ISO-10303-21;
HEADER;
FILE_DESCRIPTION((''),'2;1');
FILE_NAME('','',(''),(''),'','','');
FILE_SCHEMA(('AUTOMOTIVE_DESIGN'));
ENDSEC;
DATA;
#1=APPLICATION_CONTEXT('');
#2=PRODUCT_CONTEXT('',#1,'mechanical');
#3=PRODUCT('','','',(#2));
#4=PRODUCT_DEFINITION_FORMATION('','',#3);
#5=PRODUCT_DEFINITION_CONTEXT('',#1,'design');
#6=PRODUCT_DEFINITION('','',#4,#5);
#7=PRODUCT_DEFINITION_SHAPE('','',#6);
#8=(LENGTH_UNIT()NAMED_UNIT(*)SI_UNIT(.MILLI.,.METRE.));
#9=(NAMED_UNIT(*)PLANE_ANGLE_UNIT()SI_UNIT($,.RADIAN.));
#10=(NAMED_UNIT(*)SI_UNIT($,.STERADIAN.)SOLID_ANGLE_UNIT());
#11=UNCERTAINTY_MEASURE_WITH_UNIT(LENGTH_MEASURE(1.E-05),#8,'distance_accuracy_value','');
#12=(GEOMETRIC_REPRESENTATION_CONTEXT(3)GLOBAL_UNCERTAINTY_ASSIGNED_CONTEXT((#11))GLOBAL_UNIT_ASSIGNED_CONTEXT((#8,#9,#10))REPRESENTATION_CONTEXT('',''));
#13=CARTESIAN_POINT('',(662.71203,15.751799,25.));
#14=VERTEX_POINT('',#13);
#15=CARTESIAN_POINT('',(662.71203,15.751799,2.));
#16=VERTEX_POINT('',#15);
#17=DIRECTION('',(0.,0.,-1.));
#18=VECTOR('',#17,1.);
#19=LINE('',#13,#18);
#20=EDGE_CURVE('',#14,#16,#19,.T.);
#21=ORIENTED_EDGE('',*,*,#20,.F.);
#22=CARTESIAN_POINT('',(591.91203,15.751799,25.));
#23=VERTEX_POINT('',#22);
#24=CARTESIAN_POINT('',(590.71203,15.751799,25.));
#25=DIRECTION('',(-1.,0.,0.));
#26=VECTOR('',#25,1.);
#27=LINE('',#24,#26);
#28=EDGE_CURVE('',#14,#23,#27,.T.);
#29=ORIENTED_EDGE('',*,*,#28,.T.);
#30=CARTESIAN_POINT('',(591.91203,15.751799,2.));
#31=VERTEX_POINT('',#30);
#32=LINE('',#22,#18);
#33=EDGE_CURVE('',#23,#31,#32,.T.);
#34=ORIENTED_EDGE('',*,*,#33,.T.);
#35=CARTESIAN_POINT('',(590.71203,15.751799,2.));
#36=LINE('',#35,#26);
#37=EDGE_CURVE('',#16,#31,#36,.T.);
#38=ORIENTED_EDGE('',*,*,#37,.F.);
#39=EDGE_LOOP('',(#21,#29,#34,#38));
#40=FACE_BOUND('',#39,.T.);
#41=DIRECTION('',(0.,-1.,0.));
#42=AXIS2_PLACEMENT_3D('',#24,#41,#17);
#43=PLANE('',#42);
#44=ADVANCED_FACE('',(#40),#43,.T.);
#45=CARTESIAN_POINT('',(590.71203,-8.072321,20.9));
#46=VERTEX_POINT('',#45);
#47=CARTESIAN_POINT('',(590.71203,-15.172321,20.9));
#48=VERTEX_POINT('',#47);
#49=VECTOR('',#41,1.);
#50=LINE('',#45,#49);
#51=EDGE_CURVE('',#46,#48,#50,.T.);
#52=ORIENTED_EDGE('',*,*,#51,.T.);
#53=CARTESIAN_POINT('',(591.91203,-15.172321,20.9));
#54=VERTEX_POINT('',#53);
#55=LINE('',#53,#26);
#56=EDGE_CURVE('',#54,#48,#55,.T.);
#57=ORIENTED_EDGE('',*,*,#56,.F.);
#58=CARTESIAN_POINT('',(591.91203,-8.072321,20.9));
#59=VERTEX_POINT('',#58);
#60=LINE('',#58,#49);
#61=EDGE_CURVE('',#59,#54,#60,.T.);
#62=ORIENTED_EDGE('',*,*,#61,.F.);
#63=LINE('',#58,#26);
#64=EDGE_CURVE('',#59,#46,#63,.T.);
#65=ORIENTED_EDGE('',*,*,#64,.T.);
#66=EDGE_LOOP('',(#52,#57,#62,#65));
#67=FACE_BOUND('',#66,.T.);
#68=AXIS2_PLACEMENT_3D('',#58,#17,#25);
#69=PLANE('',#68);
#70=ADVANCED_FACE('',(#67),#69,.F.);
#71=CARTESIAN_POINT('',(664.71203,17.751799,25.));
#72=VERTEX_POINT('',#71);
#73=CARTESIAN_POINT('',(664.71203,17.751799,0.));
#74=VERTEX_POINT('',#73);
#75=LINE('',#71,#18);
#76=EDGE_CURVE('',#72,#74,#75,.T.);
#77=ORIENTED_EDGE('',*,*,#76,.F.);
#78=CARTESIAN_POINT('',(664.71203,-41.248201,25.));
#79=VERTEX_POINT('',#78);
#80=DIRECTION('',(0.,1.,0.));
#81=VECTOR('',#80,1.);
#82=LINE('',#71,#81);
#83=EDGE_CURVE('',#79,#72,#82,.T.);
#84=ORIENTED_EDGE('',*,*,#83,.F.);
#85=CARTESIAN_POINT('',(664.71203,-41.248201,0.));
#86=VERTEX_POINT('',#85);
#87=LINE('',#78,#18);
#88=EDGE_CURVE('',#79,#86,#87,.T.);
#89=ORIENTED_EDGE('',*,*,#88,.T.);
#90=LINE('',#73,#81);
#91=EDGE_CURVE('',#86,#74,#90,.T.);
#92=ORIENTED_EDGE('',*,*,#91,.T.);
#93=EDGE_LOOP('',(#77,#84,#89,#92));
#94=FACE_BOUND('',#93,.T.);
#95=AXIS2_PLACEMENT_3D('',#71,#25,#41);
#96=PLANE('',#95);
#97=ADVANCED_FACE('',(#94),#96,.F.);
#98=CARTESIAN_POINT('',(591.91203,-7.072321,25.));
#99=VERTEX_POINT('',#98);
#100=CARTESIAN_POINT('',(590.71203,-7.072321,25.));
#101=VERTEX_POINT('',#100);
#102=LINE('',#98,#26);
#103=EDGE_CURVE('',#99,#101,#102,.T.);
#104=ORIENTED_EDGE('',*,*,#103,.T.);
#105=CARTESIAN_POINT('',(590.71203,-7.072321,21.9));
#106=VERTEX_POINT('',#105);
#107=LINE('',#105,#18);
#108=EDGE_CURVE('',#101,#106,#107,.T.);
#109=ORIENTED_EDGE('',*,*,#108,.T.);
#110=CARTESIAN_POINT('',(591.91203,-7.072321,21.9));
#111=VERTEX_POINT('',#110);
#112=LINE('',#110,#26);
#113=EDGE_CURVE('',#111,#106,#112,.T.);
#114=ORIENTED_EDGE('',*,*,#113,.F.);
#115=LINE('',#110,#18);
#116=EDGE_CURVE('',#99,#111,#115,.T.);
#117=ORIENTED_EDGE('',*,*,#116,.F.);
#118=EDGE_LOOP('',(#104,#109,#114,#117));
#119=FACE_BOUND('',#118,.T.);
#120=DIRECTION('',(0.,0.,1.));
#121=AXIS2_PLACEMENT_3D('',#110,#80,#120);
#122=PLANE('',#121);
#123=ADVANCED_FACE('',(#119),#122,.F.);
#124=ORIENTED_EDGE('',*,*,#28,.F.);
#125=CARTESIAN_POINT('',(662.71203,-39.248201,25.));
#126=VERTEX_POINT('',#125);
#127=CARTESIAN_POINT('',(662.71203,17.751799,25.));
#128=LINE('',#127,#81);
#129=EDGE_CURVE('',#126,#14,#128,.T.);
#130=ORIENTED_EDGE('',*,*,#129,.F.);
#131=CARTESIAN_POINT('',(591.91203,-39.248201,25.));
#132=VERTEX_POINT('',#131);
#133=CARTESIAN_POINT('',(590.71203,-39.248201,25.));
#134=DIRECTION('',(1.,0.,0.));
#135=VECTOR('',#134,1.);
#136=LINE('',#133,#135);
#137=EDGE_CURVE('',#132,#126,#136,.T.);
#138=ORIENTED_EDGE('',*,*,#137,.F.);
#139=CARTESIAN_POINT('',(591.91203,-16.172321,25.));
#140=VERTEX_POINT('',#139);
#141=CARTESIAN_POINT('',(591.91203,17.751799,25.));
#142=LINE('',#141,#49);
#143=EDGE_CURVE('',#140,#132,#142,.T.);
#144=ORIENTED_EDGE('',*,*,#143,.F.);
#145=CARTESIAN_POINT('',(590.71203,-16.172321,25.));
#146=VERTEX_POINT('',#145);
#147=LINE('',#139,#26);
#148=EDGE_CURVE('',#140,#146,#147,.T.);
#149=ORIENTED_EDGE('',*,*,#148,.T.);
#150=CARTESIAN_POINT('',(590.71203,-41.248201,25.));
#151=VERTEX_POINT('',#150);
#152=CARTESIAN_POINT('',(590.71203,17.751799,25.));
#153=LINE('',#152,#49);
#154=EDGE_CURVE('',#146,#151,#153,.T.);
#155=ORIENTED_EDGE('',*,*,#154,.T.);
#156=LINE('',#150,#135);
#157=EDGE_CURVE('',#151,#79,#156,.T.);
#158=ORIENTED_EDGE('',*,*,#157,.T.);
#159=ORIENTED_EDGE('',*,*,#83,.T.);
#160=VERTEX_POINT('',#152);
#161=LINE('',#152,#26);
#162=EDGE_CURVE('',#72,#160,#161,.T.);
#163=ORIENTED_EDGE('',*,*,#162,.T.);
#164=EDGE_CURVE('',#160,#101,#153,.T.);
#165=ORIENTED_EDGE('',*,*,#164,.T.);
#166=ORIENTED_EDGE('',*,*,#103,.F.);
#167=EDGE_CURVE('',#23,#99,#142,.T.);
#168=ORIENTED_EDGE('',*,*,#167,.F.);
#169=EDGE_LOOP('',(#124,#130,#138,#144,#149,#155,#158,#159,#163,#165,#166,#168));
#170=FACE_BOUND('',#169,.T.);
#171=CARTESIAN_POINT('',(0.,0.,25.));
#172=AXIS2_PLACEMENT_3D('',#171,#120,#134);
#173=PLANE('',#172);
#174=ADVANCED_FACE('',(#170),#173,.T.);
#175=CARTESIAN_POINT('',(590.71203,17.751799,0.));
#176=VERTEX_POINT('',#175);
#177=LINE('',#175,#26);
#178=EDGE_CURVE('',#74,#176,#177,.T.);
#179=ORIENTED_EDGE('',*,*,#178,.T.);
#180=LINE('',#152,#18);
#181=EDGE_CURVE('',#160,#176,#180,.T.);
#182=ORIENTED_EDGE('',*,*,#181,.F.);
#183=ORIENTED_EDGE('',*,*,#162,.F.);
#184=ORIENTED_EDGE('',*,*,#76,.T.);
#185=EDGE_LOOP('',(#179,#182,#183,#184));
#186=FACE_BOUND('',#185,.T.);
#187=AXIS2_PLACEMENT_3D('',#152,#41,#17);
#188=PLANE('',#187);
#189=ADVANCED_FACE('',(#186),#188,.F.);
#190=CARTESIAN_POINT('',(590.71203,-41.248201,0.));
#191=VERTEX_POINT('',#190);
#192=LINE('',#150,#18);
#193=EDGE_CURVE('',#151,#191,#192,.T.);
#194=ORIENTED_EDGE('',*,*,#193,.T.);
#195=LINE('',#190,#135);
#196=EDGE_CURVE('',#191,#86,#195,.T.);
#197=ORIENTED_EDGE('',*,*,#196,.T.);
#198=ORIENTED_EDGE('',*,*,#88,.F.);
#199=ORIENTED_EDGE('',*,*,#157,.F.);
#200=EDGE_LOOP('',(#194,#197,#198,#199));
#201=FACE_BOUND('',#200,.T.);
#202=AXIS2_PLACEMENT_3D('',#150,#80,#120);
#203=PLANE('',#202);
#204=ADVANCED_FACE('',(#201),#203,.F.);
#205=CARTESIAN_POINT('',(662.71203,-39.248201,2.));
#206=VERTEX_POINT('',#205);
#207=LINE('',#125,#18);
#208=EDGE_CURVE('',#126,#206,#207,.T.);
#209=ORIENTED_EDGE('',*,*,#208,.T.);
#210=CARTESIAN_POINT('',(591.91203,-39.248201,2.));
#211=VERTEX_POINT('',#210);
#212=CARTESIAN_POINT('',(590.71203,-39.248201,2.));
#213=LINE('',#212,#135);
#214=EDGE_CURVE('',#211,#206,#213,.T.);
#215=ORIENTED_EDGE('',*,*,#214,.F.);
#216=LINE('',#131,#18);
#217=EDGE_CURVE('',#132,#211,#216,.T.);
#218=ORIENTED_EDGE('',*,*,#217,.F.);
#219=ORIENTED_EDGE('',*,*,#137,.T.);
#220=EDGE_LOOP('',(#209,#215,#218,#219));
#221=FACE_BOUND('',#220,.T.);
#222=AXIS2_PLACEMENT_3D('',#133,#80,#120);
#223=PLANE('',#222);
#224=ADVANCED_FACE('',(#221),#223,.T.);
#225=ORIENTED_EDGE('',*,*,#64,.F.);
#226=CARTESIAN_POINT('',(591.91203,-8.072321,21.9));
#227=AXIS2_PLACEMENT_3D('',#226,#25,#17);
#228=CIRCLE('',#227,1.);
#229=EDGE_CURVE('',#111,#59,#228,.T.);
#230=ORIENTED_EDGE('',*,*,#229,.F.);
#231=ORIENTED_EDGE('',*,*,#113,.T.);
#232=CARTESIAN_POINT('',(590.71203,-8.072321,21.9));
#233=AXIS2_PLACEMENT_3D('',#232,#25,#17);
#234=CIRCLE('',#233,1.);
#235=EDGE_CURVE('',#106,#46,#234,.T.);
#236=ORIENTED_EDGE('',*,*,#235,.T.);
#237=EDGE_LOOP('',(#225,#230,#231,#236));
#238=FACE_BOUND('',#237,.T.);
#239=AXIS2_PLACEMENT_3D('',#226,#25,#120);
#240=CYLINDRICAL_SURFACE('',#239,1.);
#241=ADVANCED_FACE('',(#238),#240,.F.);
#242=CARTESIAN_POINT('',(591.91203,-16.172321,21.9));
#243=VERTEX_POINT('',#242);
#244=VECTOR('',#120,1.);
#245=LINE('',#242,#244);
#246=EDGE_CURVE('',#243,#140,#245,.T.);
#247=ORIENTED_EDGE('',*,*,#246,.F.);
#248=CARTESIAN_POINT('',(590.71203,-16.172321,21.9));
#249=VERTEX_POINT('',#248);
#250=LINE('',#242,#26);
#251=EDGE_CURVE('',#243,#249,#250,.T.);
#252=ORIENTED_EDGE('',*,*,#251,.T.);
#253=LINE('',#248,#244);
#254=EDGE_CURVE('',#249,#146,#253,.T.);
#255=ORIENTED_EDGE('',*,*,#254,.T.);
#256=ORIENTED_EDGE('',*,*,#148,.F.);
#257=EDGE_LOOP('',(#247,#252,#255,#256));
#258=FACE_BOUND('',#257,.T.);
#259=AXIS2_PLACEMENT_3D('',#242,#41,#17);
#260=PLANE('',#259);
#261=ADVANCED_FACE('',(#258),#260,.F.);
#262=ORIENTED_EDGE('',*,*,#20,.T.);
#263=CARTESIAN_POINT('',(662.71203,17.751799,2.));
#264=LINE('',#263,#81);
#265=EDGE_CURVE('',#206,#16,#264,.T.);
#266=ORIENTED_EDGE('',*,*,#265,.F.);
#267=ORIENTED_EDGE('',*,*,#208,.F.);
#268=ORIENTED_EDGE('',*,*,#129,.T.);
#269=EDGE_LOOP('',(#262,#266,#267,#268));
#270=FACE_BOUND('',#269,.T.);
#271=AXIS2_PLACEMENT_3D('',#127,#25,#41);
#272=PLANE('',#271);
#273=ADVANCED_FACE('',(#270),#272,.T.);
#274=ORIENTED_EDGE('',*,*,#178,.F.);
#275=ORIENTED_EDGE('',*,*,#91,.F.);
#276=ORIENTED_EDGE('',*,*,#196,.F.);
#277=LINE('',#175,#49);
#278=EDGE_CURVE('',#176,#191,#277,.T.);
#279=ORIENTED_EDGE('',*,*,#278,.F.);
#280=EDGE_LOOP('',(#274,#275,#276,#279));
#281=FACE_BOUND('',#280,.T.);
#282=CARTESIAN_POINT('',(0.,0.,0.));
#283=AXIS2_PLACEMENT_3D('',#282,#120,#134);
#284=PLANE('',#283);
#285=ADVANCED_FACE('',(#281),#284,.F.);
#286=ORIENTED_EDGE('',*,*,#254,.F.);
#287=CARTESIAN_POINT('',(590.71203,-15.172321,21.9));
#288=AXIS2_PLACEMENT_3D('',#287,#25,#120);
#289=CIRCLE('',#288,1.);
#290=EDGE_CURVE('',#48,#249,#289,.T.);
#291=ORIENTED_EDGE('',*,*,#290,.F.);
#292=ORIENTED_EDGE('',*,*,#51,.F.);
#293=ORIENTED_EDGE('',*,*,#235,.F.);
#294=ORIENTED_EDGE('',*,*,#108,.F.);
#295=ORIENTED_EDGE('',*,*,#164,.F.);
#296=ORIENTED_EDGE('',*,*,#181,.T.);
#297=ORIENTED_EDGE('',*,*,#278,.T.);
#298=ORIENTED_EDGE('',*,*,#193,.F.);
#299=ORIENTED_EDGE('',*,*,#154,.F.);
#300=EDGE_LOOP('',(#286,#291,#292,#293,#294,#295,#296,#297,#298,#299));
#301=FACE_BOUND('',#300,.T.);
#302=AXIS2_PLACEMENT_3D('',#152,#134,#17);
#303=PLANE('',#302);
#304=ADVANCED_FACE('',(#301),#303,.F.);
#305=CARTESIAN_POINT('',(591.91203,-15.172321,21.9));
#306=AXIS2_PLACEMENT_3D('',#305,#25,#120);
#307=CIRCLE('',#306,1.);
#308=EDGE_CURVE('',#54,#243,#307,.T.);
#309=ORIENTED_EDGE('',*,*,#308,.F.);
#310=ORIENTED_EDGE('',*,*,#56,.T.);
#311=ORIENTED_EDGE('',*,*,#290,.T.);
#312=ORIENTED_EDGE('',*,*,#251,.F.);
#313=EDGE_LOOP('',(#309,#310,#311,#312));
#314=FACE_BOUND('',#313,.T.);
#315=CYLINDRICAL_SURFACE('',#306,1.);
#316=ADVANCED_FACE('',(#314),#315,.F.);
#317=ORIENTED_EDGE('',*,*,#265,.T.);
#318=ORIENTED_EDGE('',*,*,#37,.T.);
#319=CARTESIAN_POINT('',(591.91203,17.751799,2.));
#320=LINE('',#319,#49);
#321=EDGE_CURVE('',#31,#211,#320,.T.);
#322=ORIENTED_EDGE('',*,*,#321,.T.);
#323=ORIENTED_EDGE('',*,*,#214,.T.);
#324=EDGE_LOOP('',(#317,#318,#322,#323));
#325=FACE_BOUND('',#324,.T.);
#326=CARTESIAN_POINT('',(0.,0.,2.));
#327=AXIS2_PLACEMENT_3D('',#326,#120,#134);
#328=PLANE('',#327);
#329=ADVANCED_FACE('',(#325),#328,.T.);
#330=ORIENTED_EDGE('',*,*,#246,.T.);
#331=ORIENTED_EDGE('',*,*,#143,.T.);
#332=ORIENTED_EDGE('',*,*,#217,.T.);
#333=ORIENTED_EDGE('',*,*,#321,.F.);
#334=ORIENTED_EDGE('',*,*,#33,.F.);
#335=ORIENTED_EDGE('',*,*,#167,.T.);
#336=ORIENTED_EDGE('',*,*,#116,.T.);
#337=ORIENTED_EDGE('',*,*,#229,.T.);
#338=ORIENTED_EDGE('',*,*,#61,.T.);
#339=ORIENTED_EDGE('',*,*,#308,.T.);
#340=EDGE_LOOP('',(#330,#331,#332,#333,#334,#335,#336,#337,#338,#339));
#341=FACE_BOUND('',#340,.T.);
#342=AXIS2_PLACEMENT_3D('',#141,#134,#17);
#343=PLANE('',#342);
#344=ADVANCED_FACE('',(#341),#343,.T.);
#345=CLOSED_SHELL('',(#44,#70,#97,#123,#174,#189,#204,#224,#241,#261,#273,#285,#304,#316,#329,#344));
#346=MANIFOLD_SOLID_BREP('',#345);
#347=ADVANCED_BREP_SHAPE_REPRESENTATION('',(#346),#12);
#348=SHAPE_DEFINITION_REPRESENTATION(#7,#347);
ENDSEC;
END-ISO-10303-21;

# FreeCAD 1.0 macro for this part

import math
import FreeCAD as App
import Part
import Sketcher
from FreeCAD import Vector
Q = App.Units.Quantity


def faces_at(feature, points):
    """Names of the faces that lie closest to the given points."""
    faces = feature.Shape.Faces
    near = lambda p: min(range(len(faces)), key=lambda i: faces[i].distToShape(Part.Vertex(*p))[0])
    return sorted({f"Face{near(p) + 1}" for p in points})


def add_polygon(sketch, points):
    """Adds a closed chain of lines whose ends are joined by coincident constraints."""
    first, n = sketch.GeometryCount, len(points)
    for a, b in zip(points, points[1:] + points[:1]):
        sketch.addGeometry(Part.LineSegment(App.Vector(*a, 0), App.Vector(*b, 0)), False)
    for i in range(n):
        sketch.addConstraint(Sketcher.Constraint("Coincident", first + i, 2, first + (i + 1) % n, 1))

doc = App.newDocument("Part")
body = doc.addObject("PartDesign::Body", "Body")

# Sketch on XY plane
sketch1 = doc.addObject("Sketcher::SketchObject", "Sketch")
body.addObject(sketch1)
sketch1.AttachmentSupport = (doc.XY_Plane, [""])
sketch1.MapMode = "FlatFace"
add_polygon(sketch1, [(591, 18), (591, -41), (665, -41), (665, 18)])  # lines 0-3
sketch1.addConstraint([
    Sketcher.Constraint("Vertical", 0),
    Sketcher.Constraint("Horizontal", 1),
    Sketcher.Constraint("Vertical", 2),
    Sketcher.Constraint("Horizontal", 3),
    Sketcher.Constraint("DistanceX", 1, 1, 1, 2, Q("74 mm")),
    Sketcher.Constraint("DistanceY", 0, 2, 0, 1, Q("59 mm")),
    Sketcher.Constraint("DistanceY", 0, 2, -1, 1, Q("41.248201 mm")),
    Sketcher.Constraint("DistanceX", -1, 1, 0, 2, Q("590.71203 mm")),
])
pad1 = doc.addObject("PartDesign::Pad", "Pad")
body.addObject(pad1)
pad1.Profile = sketch1
pad1.Length = 25
doc.recompute()

thickness = doc.addObject("PartDesign::Thickness", "Thickness")
body.addObject(thickness)
thickness.Base = (pad1, faces_at(pad1, [(627.712, -11.748, 25)]))
thickness.Value = 2
thickness.Reversed = True
thickness.Join = "Intersection"

# Sketch on YZ plane
sketch2 = doc.addObject("Sketcher::SketchObject", "Sketch001")
body.addObject(sketch2)
sketch2.AttachmentSupport = (doc.YZ_Plane, [""])
sketch2.MapMode = "FlatFace"
sketch2.AttachmentOffset = App.Placement(Vector(0, 0, 592.71203), App.Rotation())
add_polygon(sketch2, [(-39, 25), (16, 25), (16, 2), (-39, 2)])  # lines 0-3
sketch2.addConstraint([
    Sketcher.Constraint("Horizontal", 0),
    Sketcher.Constraint("Vertical", 1),
    Sketcher.Constraint("Horizontal", 2),
    Sketcher.Constraint("Vertical", 3),
    Sketcher.Constraint("DistanceX", 0, 1, 0, 2, Q("55 mm")),
    Sketcher.Constraint("DistanceY", 1, 2, 1, 1, Q("23 mm")),
    Sketcher.Constraint("DistanceY", -1, 1, 0, 2, Q("25 mm")),
    Sketcher.Constraint("DistanceX", -1, 1, 0, 2, Q("15.751799 mm")),
])
pocket1 = doc.addObject("PartDesign::Pocket", "Pocket")
body.addObject(pocket1)
pocket1.Profile = sketch2
pocket1.Length = 0.8

# Sketch on YZ plane
sketch3 = doc.addObject("Sketcher::SketchObject", "Sketch002")
body.addObject(sketch3)
sketch3.AttachmentSupport = (doc.YZ_Plane, [""])
sketch3.MapMode = "FlatFace"
sketch3.AttachmentOffset = App.Placement(Vector(0, 0, 590.71203), App.Rotation())
sketch3.addGeometry([
    Part.LineSegment(Vector(-7.1, 25, 0), Vector(-7.1, 21.9, 0)),  # 0
    Part.ArcOfCircle(Part.Circle(Vector(-8.1, 21.9, 0), Vector(0, 0, 1), 1), math.radians(-90), math.radians(0)),  # 1
    Part.LineSegment(Vector(-8.1, 20.9, 0), Vector(-15.2, 20.9, 0)),  # 2
    Part.ArcOfCircle(Part.Circle(Vector(-15.2, 21.9, 0), Vector(0, 0, 1), 1), math.radians(180), math.radians(270)),  # 3
    Part.LineSegment(Vector(-16.2, 21.9, 0), Vector(-16.2, 25, 0)),  # 4
    Part.LineSegment(Vector(-16.2, 25, 0), Vector(-7.1, 25, 0)),  # 5
], False)
sketch3.addConstraint([
    Sketcher.Constraint("Tangent", 0, 2, 1, 2),
    Sketcher.Constraint("Tangent", 1, 1, 2, 1),
    Sketcher.Constraint("Tangent", 2, 2, 3, 2),
    Sketcher.Constraint("Tangent", 3, 1, 4, 1),
    Sketcher.Constraint("Coincident", 4, 2, 5, 1),
    Sketcher.Constraint("Coincident", 5, 2, 0, 1),
    Sketcher.Constraint("Vertical", 0),
    Sketcher.Constraint("Horizontal", 2),
    Sketcher.Constraint("Vertical", 4),
    Sketcher.Constraint("Horizontal", 5),
    Sketcher.Constraint("Equal", 1, 3),
    Sketcher.Constraint("Radius", 1, Q("1 mm")),
    Sketcher.Constraint("DistanceX", 2, 2, 2, 1, Q("7.1 mm")),
    Sketcher.Constraint("DistanceY", 0, 2, 0, 1, Q("3.1 mm")),
    Sketcher.Constraint("DistanceY", -1, 1, 4, 2, Q("25 mm")),
    Sketcher.Constraint("DistanceX", 1, 3, -1, 1, Q("8.072321 mm")),
])
pocket2 = doc.addObject("PartDesign::Pocket", "Pocket001")
body.addObject(pocket2)
pocket2.Profile = sketch3
pocket2.Length = 1.2
pocket2.Reversed = True

doc.recompute()
